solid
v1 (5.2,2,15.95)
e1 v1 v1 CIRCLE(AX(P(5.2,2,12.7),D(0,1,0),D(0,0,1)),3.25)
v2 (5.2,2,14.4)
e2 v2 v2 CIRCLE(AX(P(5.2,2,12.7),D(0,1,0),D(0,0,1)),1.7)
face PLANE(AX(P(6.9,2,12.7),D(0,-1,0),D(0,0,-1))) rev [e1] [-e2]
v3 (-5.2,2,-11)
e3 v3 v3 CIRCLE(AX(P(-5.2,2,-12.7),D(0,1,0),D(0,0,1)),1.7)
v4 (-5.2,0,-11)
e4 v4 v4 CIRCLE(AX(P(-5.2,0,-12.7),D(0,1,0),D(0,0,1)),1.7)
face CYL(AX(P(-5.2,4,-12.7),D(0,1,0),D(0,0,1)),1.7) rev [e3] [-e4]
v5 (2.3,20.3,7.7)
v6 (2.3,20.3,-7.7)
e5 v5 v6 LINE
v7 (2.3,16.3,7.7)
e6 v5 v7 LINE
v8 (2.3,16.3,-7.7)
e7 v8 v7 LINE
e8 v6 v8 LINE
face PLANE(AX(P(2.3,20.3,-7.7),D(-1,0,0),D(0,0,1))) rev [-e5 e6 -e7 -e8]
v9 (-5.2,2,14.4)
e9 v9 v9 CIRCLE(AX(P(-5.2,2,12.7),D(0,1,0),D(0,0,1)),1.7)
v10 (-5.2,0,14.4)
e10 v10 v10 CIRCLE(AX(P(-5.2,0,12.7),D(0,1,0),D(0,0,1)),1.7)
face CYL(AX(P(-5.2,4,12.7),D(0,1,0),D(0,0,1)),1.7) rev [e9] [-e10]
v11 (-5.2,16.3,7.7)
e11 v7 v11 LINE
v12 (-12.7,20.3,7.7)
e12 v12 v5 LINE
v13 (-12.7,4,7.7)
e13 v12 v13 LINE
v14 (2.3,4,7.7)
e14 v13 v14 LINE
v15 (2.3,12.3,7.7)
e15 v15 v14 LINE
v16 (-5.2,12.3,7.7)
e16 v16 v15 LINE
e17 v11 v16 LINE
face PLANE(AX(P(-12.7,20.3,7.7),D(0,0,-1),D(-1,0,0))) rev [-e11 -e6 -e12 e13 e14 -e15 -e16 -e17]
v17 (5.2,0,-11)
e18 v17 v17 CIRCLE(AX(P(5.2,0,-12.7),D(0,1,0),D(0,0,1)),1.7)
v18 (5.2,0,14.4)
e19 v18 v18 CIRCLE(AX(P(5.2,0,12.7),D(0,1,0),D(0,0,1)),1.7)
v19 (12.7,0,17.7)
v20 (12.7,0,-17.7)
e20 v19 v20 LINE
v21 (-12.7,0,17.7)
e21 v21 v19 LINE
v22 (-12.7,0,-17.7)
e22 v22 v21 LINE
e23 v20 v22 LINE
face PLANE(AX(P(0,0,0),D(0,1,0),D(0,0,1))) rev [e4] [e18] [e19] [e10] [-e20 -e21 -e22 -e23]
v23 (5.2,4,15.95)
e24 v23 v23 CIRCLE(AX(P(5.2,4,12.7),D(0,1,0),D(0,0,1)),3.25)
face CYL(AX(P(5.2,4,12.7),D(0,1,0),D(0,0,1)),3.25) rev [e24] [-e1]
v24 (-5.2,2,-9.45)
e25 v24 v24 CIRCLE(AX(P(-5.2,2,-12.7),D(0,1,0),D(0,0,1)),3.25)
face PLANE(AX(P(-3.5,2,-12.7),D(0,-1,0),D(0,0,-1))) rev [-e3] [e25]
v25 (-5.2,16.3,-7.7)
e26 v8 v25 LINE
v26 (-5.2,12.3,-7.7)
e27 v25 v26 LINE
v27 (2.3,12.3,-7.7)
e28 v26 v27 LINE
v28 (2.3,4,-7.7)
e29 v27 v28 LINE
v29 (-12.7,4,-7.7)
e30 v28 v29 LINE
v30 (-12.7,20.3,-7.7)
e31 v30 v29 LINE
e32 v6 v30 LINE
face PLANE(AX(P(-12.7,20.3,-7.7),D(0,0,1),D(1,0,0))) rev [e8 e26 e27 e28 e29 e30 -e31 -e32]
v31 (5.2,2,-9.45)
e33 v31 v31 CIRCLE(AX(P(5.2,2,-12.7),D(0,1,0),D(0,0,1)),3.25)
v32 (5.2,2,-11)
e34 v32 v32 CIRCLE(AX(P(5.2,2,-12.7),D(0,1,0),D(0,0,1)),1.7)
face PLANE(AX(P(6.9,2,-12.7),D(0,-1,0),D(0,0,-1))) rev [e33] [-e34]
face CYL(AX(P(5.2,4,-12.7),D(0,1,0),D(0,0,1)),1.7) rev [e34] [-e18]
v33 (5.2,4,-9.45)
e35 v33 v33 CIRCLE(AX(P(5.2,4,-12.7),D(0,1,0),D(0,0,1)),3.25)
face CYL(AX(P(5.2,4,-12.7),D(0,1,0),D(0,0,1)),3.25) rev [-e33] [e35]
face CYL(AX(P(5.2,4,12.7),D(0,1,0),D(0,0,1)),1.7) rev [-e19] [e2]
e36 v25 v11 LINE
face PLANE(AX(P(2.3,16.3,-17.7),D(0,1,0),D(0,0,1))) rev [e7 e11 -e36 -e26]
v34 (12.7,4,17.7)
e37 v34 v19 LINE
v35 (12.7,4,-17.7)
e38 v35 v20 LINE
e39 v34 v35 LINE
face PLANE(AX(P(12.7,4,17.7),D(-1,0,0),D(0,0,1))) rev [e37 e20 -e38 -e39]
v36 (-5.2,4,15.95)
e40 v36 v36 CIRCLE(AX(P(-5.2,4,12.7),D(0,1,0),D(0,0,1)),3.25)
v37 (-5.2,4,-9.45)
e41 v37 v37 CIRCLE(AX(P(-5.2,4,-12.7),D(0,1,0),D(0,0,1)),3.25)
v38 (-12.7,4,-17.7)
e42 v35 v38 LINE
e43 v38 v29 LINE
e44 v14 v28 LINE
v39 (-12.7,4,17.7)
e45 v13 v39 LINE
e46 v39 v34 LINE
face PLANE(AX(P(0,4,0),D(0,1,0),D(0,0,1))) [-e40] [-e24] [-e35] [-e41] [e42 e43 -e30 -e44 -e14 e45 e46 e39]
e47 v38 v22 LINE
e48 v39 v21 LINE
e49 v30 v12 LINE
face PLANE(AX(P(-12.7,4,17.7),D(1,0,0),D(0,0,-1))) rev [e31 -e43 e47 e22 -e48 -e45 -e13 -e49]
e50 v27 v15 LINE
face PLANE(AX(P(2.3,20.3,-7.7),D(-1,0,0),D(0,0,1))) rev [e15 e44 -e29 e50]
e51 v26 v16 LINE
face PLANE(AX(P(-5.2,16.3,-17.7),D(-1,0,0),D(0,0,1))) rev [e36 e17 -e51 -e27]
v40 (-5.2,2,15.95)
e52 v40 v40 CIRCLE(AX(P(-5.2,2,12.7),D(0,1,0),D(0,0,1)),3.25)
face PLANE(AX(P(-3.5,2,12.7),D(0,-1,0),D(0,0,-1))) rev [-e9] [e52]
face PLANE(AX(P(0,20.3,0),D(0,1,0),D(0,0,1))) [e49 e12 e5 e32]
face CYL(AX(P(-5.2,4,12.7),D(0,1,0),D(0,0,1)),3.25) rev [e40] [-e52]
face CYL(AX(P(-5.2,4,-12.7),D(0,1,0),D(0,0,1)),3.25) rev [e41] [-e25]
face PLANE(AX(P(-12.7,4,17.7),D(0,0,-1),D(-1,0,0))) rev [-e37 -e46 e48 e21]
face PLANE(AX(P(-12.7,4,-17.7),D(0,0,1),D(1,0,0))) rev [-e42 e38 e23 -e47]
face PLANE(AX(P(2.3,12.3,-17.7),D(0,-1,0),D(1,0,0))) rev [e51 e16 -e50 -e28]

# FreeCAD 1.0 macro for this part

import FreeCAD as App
import Part
import Sketcher
from FreeCAD import Vector
Q = App.Units.Quantity


def add_polygon(sketch, points):
    """Adds a closed chain of lines whose ends are joined by coincident constraints."""
    first, n = sketch.GeometryCount, len(points)
    for a, b in zip(points, points[1:] + points[:1]):
        sketch.addGeometry(Part.LineSegment(App.Vector(*a, 0), App.Vector(*b, 0)), False)
    for i in range(n):
        sketch.addConstraint(Sketcher.Constraint("Coincident", first + i, 2, first + (i + 1) % n, 1))

doc = App.newDocument("Part")
body = doc.addObject("PartDesign::Body", "Body")

# Sketch on XZ plane
sketch1 = doc.addObject("Sketcher::SketchObject", "Sketch")
body.addObject(sketch1)
sketch1.AttachmentSupport = (doc.XZ_Plane, [""])
sketch1.MapMode = "FlatFace"
add_polygon(sketch1, [(-5, -10), (-5, 10), (5, 10), (5, -10)])  # lines 0-3
sketch1.addConstraint(Sketcher.Constraint("Vertical", 0))
sketch1.addConstraint(Sketcher.Constraint("Horizontal", 1))
sketch1.addConstraint(Sketcher.Constraint("Vertical", 2))
sketch1.addConstraint(Sketcher.Constraint("Horizontal", 3))
sketch1.addConstraint(Sketcher.Constraint("Symmetric", 0, 2, 2, 2, -1, 1))
sketch1.addConstraint(Sketcher.Constraint("DistanceX", 1, 1, 1, 2, Q("10.4 mm")))
sketch1.addConstraint(Sketcher.Constraint("DistanceY", 0, 1, 0, 2, Q("20.4 mm")))
pad1 = doc.addObject("PartDesign::Pad", "Pad")
body.addObject(pad1)
pad1.Profile = sketch1
pad1.Length = 4
pad1.Reversed = True

# Sketch on XZ plane
sketch2 = doc.addObject("Sketcher::SketchObject", "Sketch001")
body.addObject(sketch2)
sketch2.AttachmentSupport = (doc.XZ_Plane, [""])
sketch2.MapMode = "FlatFace"
add_polygon(sketch2, [(-13, -18), (-13, 18), (13, 18), (13, -18)])  # lines 0-3
sketch2.addConstraint(Sketcher.Constraint("Vertical", 0))
sketch2.addConstraint(Sketcher.Constraint("Horizontal", 1))
sketch2.addConstraint(Sketcher.Constraint("Vertical", 2))
sketch2.addConstraint(Sketcher.Constraint("Horizontal", 3))
sketch2.addConstraint(Sketcher.Constraint("Symmetric", 0, 2, 2, 2, -1, 1))
sketch2.addConstraint(Sketcher.Constraint("DistanceX", 1, 1, 1, 2, Q("25.4 mm")))
sketch2.addConstraint(Sketcher.Constraint("DistanceY", 0, 1, 0, 2, Q("35.4 mm")))
pad2 = doc.addObject("PartDesign::Pad", "Pad001")
body.addObject(pad2)
pad2.Profile = sketch2
pad2.Length = 4
pad2.Reversed = True

# Sketch on XZ plane
sketch3 = doc.addObject("Sketcher::SketchObject", "Sketch002")
body.addObject(sketch3)
sketch3.AttachmentSupport = (doc.XZ_Plane, [""])
sketch3.MapMode = "FlatFace"
sketch3.AttachmentOffset = App.Placement(Vector(0, 0, -4), App.Rotation())
add_polygon(sketch3, [(-13, -8), (-13, 8), (2, 8), (2, -8)])  # lines 0-3
sketch3.addConstraint(Sketcher.Constraint("Vertical", 0))
sketch3.addConstraint(Sketcher.Constraint("Horizontal", 1))
sketch3.addConstraint(Sketcher.Constraint("Vertical", 2))
sketch3.addConstraint(Sketcher.Constraint("Horizontal", 3))
sketch3.addConstraint(Sketcher.Constraint("DistanceX", 1, 1, 1, 2, Q("15 mm")))
sketch3.addConstraint(Sketcher.Constraint("DistanceY", 0, 1, 0, 2, Q("15.4 mm")))
sketch3.addConstraint(Sketcher.Constraint("DistanceX", 0, 2, -1, 1, Q("12.7 mm")))
sketch3.addConstraint(Sketcher.Constraint("DistanceY", -1, 1, 0, 2, Q("7.7 mm")))
pad3 = doc.addObject("PartDesign::Pad", "Pad002")
body.addObject(pad3)
pad3.Profile = sketch3
pad3.Length = 16.3
pad3.Reversed = True

# Sketch on XY plane
sketch4 = doc.addObject("Sketcher::SketchObject", "Sketch003")
body.addObject(sketch4)
sketch4.AttachmentSupport = (doc.XY_Plane, [""])
sketch4.MapMode = "FlatFace"
sketch4.AttachmentOffset = App.Placement(Vector(0, 0, 7.7), App.Rotation())
add_polygon(sketch4, [(-5.2, 16.3), (-5.2, 12.3), (2.3, 12.3), (2.3, 16.3)])  # lines 0-3
sketch4.addConstraint(Sketcher.Constraint("Vertical", 0))
sketch4.addConstraint(Sketcher.Constraint("Horizontal", 1))
sketch4.addConstraint(Sketcher.Constraint("Vertical", 2))
sketch4.addConstraint(Sketcher.Constraint("Horizontal", 3))
sketch4.addConstraint(Sketcher.Constraint("DistanceY", 0, 2, 0, 1, Q("4 mm")))
sketch4.addConstraint(Sketcher.Constraint("DistanceX", 1, 1, 1, 2, Q("7.5 mm")))
sketch4.addConstraint(Sketcher.Constraint("DistanceX", 0, 2, -1, 1, Q("5.2 mm")))
sketch4.addConstraint(Sketcher.Constraint("DistanceY", -1, 1, 0, 2, Q("12.3 mm")))
pocket1 = doc.addObject("PartDesign::Pocket", "Pocket")
body.addObject(pocket1)
pocket1.Profile = sketch4
pocket1.Type = "ThroughAll"

# Sketch on XZ plane
sketch5 = doc.addObject("Sketcher::SketchObject", "Sketch004")
body.addObject(sketch5)
sketch5.AttachmentSupport = (doc.XZ_Plane, [""])
sketch5.MapMode = "FlatFace"
sketch5.AttachmentOffset = App.Placement(Vector(0, 0, -4), App.Rotation())
sketch5.addGeometry(Part.Circle(Vector(-5.2, -12.7, 0), Vector(0, 0, 1), 1.7), False)
sketch5.addGeometry(Part.Circle(Vector(-5.2, 12.7, 0), Vector(0, 0, 1), 1.7), False)
sketch5.addGeometry(Part.Circle(Vector(5.2, 12.7, 0), Vector(0, 0, 1), 1.7), False)
sketch5.addGeometry(Part.Circle(Vector(5.2, -12.7, 0), Vector(0, 0, 1), 1.7), False)
sketch5.addConstraint(Sketcher.Constraint("Equal", 0, 1))
sketch5.addConstraint(Sketcher.Constraint("Equal", 1, 2))
sketch5.addConstraint(Sketcher.Constraint("Equal", 2, 3))
sketch5.addConstraint(Sketcher.Constraint("Symmetric", 0, 3, 2, 3, -1, 1))
sketch5.addConstraint(Sketcher.Constraint("Symmetric", 1, 3, 3, 3, -1, 1))
sketch5.addConstraint(Sketcher.Constraint("Symmetric", 1, 3, 2, 3, -2))
sketch5.addConstraint(Sketcher.Constraint("Diameter", 0, Q("3.4 mm")))
sketch5.addConstraint(Sketcher.Constraint("DistanceX", 0, 3, -1, 1, Q("5.2 mm")))
sketch5.addConstraint(Sketcher.Constraint("DistanceY", 0, 3, -1, 1, Q("12.7 mm")))
doc.recompute()
hole = doc.addObject("PartDesign::Hole", "Hole")
body.addObject(hole)
hole.Profile = sketch5
hole.ThreadType = "None"
hole.Diameter = 3.4
hole.DepthType = "ThroughAll"
hole.HoleCutType = "Counterbore"
hole.HoleCutDiameter = 6.5
hole.HoleCutDepth = 2
hole.Reversed = True

doc.recompute()
